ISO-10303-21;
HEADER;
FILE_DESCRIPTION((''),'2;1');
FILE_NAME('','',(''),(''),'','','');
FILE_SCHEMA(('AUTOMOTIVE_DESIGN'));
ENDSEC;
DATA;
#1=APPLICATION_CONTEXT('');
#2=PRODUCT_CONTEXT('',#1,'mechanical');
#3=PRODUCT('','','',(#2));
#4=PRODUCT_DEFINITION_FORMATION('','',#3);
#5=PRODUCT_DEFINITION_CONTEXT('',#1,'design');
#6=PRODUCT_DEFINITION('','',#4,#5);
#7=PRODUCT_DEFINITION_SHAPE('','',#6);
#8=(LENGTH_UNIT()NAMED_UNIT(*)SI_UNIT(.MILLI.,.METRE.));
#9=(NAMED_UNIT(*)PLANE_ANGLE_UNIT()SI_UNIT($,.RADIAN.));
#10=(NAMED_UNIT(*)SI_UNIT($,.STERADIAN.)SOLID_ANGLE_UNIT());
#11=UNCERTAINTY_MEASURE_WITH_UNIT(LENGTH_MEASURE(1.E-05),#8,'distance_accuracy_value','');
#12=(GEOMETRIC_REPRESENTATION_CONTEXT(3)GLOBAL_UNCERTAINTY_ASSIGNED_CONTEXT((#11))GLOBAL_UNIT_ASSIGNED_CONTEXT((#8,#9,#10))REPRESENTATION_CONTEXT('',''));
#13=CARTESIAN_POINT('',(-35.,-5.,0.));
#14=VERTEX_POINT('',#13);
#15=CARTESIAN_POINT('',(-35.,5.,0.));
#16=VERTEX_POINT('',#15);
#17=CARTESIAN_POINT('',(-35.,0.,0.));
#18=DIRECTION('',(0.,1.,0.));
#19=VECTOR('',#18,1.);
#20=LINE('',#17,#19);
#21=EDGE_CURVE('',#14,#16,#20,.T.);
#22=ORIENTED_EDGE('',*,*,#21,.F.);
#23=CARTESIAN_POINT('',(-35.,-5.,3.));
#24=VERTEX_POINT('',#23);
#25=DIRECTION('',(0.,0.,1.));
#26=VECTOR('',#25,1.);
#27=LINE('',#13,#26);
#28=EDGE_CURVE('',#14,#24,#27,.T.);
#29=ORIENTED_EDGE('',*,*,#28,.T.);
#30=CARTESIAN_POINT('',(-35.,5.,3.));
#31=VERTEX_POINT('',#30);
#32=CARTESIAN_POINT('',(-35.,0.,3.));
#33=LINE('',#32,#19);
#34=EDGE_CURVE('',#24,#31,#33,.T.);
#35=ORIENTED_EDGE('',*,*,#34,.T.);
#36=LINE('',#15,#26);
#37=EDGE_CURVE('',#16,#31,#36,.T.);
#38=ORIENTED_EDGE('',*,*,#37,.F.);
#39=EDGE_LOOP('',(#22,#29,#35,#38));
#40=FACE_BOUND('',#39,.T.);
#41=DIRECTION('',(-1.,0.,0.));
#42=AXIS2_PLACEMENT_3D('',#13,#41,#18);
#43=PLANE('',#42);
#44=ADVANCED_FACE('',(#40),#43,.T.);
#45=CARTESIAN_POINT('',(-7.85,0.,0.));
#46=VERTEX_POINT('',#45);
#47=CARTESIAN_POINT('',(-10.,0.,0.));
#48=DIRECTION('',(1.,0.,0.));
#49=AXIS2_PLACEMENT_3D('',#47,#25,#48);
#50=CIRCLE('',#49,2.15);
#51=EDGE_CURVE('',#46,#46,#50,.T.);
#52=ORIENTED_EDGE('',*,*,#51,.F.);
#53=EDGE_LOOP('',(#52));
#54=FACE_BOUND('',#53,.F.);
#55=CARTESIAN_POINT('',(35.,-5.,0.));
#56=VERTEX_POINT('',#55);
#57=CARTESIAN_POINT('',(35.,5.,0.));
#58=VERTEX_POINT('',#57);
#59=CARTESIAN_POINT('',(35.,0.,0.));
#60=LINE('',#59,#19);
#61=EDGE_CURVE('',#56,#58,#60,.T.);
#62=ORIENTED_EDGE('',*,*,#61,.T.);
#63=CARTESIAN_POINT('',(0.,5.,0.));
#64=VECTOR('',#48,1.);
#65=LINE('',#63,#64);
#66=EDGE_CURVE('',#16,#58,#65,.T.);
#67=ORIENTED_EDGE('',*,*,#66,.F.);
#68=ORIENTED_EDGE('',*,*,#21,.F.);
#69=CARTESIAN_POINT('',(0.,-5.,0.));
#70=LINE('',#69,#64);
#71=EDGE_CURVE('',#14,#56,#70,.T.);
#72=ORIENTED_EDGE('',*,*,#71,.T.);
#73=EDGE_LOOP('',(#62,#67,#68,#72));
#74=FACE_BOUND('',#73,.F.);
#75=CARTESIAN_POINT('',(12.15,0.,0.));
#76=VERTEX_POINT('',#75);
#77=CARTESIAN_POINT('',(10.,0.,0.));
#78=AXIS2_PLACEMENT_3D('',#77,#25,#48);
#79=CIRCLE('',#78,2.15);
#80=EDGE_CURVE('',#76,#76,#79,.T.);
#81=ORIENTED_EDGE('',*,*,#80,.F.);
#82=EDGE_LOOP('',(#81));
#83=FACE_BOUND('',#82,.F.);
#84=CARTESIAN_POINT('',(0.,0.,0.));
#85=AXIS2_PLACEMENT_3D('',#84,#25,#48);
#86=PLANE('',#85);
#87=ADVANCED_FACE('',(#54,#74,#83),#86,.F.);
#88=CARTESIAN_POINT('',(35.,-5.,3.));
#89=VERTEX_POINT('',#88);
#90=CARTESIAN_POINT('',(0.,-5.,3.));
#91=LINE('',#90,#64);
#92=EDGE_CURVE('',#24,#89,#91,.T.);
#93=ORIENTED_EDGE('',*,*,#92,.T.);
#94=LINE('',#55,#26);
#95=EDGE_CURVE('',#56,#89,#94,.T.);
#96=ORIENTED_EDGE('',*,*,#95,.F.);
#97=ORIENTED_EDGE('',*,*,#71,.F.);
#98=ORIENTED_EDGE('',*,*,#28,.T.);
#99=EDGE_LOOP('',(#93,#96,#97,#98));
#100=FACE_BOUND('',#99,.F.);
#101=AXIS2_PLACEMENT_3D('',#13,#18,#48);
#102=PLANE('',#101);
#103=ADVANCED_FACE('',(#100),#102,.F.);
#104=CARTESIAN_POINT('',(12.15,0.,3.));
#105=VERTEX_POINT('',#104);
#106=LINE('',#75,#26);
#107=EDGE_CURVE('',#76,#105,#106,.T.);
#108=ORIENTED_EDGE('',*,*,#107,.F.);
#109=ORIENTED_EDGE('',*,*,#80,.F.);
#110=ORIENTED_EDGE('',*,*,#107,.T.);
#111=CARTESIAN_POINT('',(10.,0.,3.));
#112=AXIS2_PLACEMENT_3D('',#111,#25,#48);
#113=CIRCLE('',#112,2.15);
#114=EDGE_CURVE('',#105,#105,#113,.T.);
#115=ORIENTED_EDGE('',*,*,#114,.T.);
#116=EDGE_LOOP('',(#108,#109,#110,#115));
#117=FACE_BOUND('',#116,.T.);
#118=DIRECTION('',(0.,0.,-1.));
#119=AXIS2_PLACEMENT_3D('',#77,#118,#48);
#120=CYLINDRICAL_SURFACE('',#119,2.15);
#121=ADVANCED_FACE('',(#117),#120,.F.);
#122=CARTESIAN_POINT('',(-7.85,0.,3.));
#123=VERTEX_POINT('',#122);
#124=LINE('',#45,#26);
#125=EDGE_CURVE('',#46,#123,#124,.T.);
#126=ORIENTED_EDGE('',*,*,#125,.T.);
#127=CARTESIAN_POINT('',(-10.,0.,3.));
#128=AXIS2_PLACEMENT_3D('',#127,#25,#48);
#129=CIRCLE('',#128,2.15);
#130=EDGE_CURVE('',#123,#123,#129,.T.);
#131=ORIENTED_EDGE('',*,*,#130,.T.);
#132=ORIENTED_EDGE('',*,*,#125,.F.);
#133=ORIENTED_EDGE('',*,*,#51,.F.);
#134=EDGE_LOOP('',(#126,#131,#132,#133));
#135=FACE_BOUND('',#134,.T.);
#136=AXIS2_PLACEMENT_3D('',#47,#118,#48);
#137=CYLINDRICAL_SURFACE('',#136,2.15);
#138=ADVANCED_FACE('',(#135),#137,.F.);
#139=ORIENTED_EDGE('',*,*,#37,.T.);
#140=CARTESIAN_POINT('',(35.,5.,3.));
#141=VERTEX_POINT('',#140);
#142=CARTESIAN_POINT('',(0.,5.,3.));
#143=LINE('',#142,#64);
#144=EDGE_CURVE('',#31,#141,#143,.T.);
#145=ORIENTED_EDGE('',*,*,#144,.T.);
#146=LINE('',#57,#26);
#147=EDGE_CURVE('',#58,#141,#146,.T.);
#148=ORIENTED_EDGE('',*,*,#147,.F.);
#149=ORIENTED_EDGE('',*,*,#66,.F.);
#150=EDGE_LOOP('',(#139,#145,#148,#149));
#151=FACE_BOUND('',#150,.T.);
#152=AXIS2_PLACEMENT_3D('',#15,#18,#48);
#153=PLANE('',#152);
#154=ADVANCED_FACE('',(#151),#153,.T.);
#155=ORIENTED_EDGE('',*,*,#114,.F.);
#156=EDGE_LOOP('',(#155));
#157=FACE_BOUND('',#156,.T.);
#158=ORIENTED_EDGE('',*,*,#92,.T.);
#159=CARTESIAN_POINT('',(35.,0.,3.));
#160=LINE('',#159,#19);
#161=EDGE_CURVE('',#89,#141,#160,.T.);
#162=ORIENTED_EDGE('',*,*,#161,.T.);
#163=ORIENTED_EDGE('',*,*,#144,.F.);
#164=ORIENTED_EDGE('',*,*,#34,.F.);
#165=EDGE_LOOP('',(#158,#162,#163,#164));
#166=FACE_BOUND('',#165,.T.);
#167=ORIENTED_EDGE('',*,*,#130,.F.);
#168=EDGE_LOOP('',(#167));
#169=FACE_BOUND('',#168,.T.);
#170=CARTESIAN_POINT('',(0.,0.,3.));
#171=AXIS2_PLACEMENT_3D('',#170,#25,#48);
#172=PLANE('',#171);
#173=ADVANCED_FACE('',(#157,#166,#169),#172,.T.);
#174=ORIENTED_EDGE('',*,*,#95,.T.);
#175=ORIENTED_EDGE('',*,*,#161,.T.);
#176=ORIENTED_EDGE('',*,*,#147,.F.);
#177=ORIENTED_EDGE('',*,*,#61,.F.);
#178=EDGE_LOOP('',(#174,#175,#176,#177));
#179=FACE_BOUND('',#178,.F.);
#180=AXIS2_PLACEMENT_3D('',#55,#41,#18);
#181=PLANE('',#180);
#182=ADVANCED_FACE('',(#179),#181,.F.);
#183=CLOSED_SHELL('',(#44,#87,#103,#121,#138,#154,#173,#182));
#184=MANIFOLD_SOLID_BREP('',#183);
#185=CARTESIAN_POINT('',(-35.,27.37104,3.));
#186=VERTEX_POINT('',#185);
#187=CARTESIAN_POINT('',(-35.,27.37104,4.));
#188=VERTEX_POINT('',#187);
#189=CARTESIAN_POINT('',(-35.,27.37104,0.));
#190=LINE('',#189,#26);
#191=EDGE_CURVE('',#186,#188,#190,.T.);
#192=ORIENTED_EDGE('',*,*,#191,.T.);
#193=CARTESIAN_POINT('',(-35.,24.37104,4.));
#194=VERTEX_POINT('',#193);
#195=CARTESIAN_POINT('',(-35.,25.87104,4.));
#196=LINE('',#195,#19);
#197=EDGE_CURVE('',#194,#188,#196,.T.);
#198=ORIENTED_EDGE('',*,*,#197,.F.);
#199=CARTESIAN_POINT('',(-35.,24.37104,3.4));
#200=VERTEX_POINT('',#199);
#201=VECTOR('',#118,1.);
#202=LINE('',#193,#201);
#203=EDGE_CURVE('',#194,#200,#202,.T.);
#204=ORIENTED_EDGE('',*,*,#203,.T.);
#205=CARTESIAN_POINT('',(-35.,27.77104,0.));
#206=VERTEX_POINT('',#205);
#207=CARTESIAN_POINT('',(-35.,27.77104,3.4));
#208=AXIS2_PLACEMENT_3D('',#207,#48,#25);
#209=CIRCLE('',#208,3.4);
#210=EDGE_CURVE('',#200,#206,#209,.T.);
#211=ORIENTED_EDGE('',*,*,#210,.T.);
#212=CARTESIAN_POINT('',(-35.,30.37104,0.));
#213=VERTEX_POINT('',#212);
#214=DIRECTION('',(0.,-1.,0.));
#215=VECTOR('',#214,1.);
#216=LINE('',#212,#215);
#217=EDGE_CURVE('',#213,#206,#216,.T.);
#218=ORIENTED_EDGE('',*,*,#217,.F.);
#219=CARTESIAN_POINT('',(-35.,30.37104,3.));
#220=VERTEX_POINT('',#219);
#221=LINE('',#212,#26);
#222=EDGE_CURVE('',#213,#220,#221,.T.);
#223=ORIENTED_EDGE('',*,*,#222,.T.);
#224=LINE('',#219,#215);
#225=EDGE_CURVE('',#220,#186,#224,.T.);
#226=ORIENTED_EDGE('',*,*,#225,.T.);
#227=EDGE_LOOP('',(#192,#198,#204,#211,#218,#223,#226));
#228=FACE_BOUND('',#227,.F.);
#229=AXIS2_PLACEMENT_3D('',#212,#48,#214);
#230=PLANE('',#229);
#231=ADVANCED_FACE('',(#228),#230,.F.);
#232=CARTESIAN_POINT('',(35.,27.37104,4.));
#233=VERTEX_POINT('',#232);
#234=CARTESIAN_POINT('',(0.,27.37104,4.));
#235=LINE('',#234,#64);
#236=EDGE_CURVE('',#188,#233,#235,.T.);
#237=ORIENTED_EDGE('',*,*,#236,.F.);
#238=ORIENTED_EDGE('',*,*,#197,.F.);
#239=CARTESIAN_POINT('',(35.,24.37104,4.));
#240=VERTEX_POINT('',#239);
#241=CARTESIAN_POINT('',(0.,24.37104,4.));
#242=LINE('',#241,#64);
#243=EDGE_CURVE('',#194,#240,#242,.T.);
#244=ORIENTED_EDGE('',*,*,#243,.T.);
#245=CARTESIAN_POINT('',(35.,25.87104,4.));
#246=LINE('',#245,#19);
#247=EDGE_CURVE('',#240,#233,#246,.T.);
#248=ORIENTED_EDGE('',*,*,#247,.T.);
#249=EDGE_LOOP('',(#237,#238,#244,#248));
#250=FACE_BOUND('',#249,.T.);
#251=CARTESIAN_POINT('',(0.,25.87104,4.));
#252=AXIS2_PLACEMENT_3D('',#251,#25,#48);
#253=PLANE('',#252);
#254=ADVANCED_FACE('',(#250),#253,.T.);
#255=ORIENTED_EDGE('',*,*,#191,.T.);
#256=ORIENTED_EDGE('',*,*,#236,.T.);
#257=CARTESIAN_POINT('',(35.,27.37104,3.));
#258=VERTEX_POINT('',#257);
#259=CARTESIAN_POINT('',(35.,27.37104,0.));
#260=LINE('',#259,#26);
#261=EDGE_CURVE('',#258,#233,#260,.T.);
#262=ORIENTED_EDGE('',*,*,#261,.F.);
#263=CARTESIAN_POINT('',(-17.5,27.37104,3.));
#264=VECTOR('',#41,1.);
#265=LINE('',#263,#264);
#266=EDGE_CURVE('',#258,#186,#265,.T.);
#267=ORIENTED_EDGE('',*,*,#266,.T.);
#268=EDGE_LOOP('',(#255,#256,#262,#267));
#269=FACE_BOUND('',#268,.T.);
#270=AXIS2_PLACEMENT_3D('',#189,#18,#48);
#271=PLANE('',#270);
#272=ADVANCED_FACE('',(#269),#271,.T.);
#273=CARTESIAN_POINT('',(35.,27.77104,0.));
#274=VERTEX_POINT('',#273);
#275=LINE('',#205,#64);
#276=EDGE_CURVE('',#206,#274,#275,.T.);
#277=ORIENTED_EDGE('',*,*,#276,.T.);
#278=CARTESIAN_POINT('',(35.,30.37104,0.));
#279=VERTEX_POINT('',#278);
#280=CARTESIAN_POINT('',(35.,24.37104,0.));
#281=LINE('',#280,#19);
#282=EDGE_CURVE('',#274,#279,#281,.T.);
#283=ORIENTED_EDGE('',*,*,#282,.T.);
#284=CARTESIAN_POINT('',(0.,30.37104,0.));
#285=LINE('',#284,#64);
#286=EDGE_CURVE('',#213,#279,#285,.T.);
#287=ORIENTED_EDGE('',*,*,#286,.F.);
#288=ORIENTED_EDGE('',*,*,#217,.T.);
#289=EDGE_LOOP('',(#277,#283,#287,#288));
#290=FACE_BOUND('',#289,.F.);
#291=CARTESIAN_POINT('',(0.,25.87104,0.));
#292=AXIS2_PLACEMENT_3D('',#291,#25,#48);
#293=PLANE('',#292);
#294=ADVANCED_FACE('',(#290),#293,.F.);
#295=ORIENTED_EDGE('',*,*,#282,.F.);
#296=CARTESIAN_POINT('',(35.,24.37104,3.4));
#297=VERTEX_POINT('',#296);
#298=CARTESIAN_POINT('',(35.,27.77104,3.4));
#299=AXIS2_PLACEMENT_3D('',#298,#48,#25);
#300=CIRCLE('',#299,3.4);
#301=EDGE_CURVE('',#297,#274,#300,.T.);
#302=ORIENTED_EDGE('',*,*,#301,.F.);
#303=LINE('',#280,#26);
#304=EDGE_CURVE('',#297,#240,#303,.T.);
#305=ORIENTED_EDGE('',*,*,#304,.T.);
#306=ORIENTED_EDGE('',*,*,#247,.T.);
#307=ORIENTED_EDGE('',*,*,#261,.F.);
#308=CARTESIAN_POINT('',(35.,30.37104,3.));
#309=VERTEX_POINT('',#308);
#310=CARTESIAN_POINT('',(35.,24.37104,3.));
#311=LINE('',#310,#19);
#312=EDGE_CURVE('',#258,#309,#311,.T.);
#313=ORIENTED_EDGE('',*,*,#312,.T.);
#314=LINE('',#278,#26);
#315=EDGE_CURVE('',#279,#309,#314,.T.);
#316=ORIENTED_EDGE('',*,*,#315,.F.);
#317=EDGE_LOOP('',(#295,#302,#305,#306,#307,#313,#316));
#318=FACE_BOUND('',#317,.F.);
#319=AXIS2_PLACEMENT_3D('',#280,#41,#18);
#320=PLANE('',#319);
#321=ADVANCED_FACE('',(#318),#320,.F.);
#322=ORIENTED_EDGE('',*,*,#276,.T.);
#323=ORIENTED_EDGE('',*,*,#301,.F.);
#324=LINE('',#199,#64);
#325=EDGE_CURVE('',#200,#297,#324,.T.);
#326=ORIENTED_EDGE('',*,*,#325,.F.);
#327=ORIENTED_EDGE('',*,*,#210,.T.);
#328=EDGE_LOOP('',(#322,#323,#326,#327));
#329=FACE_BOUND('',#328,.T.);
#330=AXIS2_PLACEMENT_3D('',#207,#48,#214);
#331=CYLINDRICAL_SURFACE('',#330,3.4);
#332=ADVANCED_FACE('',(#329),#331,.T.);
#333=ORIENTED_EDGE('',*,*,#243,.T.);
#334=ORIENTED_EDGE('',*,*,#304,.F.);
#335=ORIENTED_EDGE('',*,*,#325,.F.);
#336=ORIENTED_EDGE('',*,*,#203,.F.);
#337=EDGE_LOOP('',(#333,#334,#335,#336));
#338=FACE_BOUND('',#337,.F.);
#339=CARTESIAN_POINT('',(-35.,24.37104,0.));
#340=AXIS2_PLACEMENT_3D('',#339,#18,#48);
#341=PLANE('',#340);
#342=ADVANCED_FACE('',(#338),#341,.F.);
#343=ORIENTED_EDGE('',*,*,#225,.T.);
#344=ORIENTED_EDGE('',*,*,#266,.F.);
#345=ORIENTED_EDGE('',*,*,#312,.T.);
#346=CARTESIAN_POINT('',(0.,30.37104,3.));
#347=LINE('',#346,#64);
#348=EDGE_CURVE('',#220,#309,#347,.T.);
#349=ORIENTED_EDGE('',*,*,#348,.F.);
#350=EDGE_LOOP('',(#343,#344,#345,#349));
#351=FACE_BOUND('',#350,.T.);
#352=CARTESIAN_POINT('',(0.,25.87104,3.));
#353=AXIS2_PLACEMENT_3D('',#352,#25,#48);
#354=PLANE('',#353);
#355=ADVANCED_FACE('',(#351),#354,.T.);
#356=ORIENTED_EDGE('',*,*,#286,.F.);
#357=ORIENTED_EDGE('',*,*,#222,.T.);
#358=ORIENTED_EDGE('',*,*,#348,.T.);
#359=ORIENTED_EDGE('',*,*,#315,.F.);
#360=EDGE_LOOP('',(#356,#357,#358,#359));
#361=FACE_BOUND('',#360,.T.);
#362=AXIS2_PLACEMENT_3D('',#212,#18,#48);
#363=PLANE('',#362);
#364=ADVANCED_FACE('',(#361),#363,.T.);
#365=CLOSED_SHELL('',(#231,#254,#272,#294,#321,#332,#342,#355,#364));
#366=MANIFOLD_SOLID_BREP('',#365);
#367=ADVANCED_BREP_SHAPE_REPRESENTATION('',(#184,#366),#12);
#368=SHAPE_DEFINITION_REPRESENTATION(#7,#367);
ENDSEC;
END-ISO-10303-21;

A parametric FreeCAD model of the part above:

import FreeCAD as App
import Part
import Sketcher

V = App.Vector
Q = App.Units.Quantity


def edges_at(feature, points):
    """Names of the edges that pass closest to the given points."""
    edges = feature.Shape.Edges
    near = lambda p: min(range(len(edges)), key=lambda i: edges[i].distToShape(Part.Vertex(*p))[0])
    return sorted({f"Edge{near(p) + 1}" for p in points})


def add_polygon(sketch, points):
    """Adds a closed chain of lines whose ends are joined by coincident constraints."""
    first, n = sketch.GeometryCount, len(points)
    for a, b in zip(points, points[1:] + points[:1]):
        sketch.addGeometry(Part.LineSegment(App.Vector(*a, 0), App.Vector(*b, 0)), False)
    for i in range(n):
        sketch.addConstraint(Sketcher.Constraint("Coincident", first + i, 2, first + (i + 1) % n, 1))

doc = App.newDocument("Part")
params = doc.addObject("Spreadsheet::Sheet", "Params")
for row, (alias, value) in enumerate([
    ("sketch1_diameter", "4.3 mm"),
    ("sketch1_width", "70 mm"),
    ("sketch1_height", "10 mm"),
    ("pad1_length", "3 mm"),
    ("sketch2_width", "70 mm"),
    ("sketch2_height", "6 mm"),
    ("pad2_length", "3 mm"),
    ("sketch3_width", "70 mm"),
    ("sketch3_height", "3 mm"),
    ("pad3_length", "4 mm"),
    ("fillet_radius", "3.4 mm"),
], start=1):
    params.set(f"A{row}", alias)
    params.set(f"B{row}", "=" + value)
    params.setAlias(f"B{row}", alias)

body = doc.addObject("PartDesign::Body", "Body")

sketch1 = body.newObject("Sketcher::SketchObject", "Sketch")
sketch1.AttachmentSupport = (doc.getObject("XY_Plane"), [""])
sketch1.MapMode = "FlatFace"
add_polygon(sketch1, [(-35, 5), (-35, -5), (35, -5), (35, 5)])
sketch1.addGeometry(Part.Circle(V(-10, 0, 0), V(0, 0, 1), 2.1), False)
sketch1.addGeometry(Part.Circle(V(10, 0, 0), V(0, 0, 1), 2.1), False)
sketch1.addConstraint(Sketcher.Constraint("Vertical", 0))
sketch1.addConstraint(Sketcher.Constraint("Horizontal", 1))
sketch1.addConstraint(Sketcher.Constraint("Vertical", 2))
sketch1.addConstraint(Sketcher.Constraint("Horizontal", 3))
sketch1.addConstraint(Sketcher.Constraint("Equal", 4, 5))
sketch1.addConstraint(Sketcher.Constraint("Symmetric", 4, 3, 5, 3, -1, 1))
sketch1.addConstraint(Sketcher.Constraint("Symmetric", 0, 2, 2, 2, -1, 1))
sketch1.addConstraint(Sketcher.Constraint("PointOnObject", 4, 3, -1))
sketch1.addConstraint(Sketcher.Constraint("Diameter", 4, Q("4.3 mm")))
sketch1.addConstraint(Sketcher.Constraint("DistanceX", 1, 1, 1, 2, Q("70 mm")))
sketch1.addConstraint(Sketcher.Constraint("DistanceY", 0, 2, 0, 1, Q("10 mm")))
sketch1.addConstraint(Sketcher.Constraint("DistanceX", 4, 3, -1, 1, Q("10 mm")))
sketch1.setExpression("Constraints[12]", "Params.sketch1_diameter")
sketch1.setExpression("Constraints[13]", "Params.sketch1_width")
sketch1.setExpression("Constraints[14]", "Params.sketch1_height")
pad1 = body.newObject("PartDesign::Pad", "Pad")
pad1.Profile = sketch1
pad1.setExpression("Length", "Params.pad1_length")
body2 = doc.addObject("PartDesign::Body", "Body001")

sketch2 = body2.newObject("Sketcher::SketchObject", "Sketch001")
sketch2.AttachmentSupport = (doc.getObject("XY_Plane001"), [""])
sketch2.MapMode = "FlatFace"
add_polygon(sketch2, [(-35, 24), (35, 24), (35, 30), (-35, 30)])
sketch2.addConstraint(Sketcher.Constraint("Horizontal", 0))
sketch2.addConstraint(Sketcher.Constraint("Vertical", 1))
sketch2.addConstraint(Sketcher.Constraint("Horizontal", 2))
sketch2.addConstraint(Sketcher.Constraint("Vertical", 3))
sketch2.addConstraint(Sketcher.Constraint("DistanceX", 0, 1, 0, 2, Q("70 mm")))
sketch2.addConstraint(Sketcher.Constraint("DistanceY", 1, 1, 1, 2, Q("6 mm")))
sketch2.addConstraint(Sketcher.Constraint("DistanceX", -1, 1, 0, 2, Q("35 mm")))
sketch2.addConstraint(Sketcher.Constraint("DistanceY", -1, 1, 0, 2, Q("24.37104 mm")))
sketch2.setExpression("Constraints[8]", "Params.sketch2_width")
sketch2.setExpression("Constraints[9]", "Params.sketch2_height")
pad2 = body2.newObject("PartDesign::Pad", "Pad001")
pad2.Profile = sketch2
pad2.setExpression("Length", "Params.pad2_length")

sketch3 = body2.newObject("Sketcher::SketchObject", "Sketch002")
sketch3.AttachmentSupport = (doc.getObject("XY_Plane001"), [""])
sketch3.MapMode = "FlatFace"
add_polygon(sketch3, [(-35, 27.4), (-35, 24.4), (35, 24.4), (35, 27.4)])
sketch3.addConstraint(Sketcher.Constraint("Vertical", 0))
sketch3.addConstraint(Sketcher.Constraint("Horizontal", 1))
sketch3.addConstraint(Sketcher.Constraint("Vertical", 2))
sketch3.addConstraint(Sketcher.Constraint("Horizontal", 3))
sketch3.addConstraint(Sketcher.Constraint("DistanceX", 1, 1, 1, 2, Q("70 mm")))
sketch3.addConstraint(Sketcher.Constraint("DistanceY", 0, 2, 0, 1, Q("3 mm")))
sketch3.addConstraint(Sketcher.Constraint("DistanceX", 0, 2, -1, 1, Q("35 mm")))
sketch3.addConstraint(Sketcher.Constraint("DistanceY", -1, 1, 0, 2, Q("24.37104 mm")))
sketch3.setExpression("Constraints[8]", "Params.sketch3_width")
sketch3.setExpression("Constraints[9]", "Params.sketch3_height")
pad3 = body2.newObject("PartDesign::Pad", "Pad002")
pad3.Profile = sketch3
pad3.setExpression("Length", "Params.pad3_length")
doc.recompute()

fillet = body2.newObject("PartDesign::Fillet", "Fillet")
fillet.Base = (pad3, edges_at(pad3, [(0, 24.371, 0)]))
fillet.setExpression("Radius", "Params.fillet_radius")

doc.recompute()
